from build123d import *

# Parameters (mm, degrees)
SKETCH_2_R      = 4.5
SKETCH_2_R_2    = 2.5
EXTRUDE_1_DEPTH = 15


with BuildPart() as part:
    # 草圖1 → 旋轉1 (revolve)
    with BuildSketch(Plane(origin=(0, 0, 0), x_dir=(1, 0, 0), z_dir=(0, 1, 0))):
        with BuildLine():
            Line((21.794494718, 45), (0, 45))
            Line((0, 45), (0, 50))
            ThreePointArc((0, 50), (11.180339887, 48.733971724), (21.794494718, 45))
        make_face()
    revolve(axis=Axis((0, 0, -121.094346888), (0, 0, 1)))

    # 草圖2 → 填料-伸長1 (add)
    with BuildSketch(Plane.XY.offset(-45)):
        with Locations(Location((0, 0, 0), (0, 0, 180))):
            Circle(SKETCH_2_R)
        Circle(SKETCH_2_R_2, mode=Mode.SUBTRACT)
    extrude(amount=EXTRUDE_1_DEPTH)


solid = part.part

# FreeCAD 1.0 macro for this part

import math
import FreeCAD as App
import Part
import Sketcher
from FreeCAD import Vector
Q = App.Units.Quantity

doc = App.newDocument("Part")
params = doc.addObject("Spreadsheet::Sheet", "Params")
for row, (alias, value) in enumerate([
    ("sketch1_radius", "50 mm"),
    ("sketch1_height", "5 mm"),
    ("revolution_angle", "360 deg"),
    ("sketch2_diameter", "9 mm"),
    ("sketch2_diameter2", "5 mm"),
    ("pad1_length", "15 mm"),
], start=1):
    params.set(f"A{row}", alias)
    params.set(f"B{row}", "=" + value)
    params.setAlias(f"B{row}", alias)

body = doc.addObject("PartDesign::Body", "Body")

# Sketch on XZ plane
sketch1 = doc.addObject("Sketcher::SketchObject", "Sketch")
body.addObject(sketch1)
sketch1.AttachmentSupport = (doc.XZ_Plane, [""])
sketch1.MapMode = "FlatFace"
sketch1.addGeometry(Part.LineSegment(Vector(0, -45, 0), Vector(22, -45, 0)), False)
sketch1.addGeometry(Part.ArcOfCircle(Part.Circle(Vector(0, 0, 0), Vector(0, 0, 1), 50), math.radians(-90), math.radians(-64)), False)
sketch1.addGeometry(Part.LineSegment(Vector(0, -50, 0), Vector(0, -45, 0)), False)
sketch1.addConstraint(Sketcher.Constraint("Coincident", 0, 2, 1, 2))
sketch1.addConstraint(Sketcher.Constraint("Coincident", 1, 1, 2, 1))
sketch1.addConstraint(Sketcher.Constraint("Coincident", 2, 2, 0, 1))
sketch1.addConstraint(Sketcher.Constraint("Horizontal", 0))
sketch1.addConstraint(Sketcher.Constraint("Vertical", 2))
sketch1.addConstraint(Sketcher.Constraint("Coincident", 1, 3, -1, 1))
sketch1.addConstraint(Sketcher.Constraint("PointOnObject", 1, 1, -2))
sketch1.addConstraint(Sketcher.Constraint("Radius", 1, Q("50 mm")))
sketch1.addConstraint(Sketcher.Constraint("DistanceY", 2, 1, 2, 2, Q("5 mm")))
sketch1.setExpression("Constraints[7]", "Params.sketch1_radius")
sketch1.setExpression("Constraints[8]", "Params.sketch1_height")
revolution = doc.addObject("PartDesign::Revolution", "Revolution")
body.addObject(revolution)
revolution.Profile = sketch1
revolution.ReferenceAxis = (sketch1, ["V_Axis"])
revolution.setExpression("Angle", "Params.revolution_angle")

# Sketch on XY plane
sketch2 = doc.addObject("Sketcher::SketchObject", "Sketch001")
body.addObject(sketch2)
sketch2.AttachmentSupport = (doc.XY_Plane, [""])
sketch2.MapMode = "FlatFace"
sketch2.AttachmentOffset = App.Placement(Vector(0, 0, -45), App.Rotation())
sketch2.addGeometry(Part.Circle(Vector(0, 0, 0), Vector(0, 0, 1), 4.5), False)
sketch2.addGeometry(Part.Circle(Vector(0, 0, 0), Vector(0, 0, 1), 2.5), False)
sketch2.addConstraint(Sketcher.Constraint("Coincident", 0, 3, -1, 1))
sketch2.addConstraint(Sketcher.Constraint("Coincident", 1, 3, -1, 1))
sketch2.addConstraint(Sketcher.Constraint("Diameter", 0, Q("9 mm")))
sketch2.addConstraint(Sketcher.Constraint("Diameter", 1, Q("5 mm")))
sketch2.setExpression("Constraints[2]", "Params.sketch2_diameter")
sketch2.setExpression("Constraints[3]", "Params.sketch2_diameter2")
pad1 = doc.addObject("PartDesign::Pad", "Pad")
body.addObject(pad1)
pad1.Profile = sketch2
pad1.setExpression("Length", "Params.pad1_length")

doc.recompute()
